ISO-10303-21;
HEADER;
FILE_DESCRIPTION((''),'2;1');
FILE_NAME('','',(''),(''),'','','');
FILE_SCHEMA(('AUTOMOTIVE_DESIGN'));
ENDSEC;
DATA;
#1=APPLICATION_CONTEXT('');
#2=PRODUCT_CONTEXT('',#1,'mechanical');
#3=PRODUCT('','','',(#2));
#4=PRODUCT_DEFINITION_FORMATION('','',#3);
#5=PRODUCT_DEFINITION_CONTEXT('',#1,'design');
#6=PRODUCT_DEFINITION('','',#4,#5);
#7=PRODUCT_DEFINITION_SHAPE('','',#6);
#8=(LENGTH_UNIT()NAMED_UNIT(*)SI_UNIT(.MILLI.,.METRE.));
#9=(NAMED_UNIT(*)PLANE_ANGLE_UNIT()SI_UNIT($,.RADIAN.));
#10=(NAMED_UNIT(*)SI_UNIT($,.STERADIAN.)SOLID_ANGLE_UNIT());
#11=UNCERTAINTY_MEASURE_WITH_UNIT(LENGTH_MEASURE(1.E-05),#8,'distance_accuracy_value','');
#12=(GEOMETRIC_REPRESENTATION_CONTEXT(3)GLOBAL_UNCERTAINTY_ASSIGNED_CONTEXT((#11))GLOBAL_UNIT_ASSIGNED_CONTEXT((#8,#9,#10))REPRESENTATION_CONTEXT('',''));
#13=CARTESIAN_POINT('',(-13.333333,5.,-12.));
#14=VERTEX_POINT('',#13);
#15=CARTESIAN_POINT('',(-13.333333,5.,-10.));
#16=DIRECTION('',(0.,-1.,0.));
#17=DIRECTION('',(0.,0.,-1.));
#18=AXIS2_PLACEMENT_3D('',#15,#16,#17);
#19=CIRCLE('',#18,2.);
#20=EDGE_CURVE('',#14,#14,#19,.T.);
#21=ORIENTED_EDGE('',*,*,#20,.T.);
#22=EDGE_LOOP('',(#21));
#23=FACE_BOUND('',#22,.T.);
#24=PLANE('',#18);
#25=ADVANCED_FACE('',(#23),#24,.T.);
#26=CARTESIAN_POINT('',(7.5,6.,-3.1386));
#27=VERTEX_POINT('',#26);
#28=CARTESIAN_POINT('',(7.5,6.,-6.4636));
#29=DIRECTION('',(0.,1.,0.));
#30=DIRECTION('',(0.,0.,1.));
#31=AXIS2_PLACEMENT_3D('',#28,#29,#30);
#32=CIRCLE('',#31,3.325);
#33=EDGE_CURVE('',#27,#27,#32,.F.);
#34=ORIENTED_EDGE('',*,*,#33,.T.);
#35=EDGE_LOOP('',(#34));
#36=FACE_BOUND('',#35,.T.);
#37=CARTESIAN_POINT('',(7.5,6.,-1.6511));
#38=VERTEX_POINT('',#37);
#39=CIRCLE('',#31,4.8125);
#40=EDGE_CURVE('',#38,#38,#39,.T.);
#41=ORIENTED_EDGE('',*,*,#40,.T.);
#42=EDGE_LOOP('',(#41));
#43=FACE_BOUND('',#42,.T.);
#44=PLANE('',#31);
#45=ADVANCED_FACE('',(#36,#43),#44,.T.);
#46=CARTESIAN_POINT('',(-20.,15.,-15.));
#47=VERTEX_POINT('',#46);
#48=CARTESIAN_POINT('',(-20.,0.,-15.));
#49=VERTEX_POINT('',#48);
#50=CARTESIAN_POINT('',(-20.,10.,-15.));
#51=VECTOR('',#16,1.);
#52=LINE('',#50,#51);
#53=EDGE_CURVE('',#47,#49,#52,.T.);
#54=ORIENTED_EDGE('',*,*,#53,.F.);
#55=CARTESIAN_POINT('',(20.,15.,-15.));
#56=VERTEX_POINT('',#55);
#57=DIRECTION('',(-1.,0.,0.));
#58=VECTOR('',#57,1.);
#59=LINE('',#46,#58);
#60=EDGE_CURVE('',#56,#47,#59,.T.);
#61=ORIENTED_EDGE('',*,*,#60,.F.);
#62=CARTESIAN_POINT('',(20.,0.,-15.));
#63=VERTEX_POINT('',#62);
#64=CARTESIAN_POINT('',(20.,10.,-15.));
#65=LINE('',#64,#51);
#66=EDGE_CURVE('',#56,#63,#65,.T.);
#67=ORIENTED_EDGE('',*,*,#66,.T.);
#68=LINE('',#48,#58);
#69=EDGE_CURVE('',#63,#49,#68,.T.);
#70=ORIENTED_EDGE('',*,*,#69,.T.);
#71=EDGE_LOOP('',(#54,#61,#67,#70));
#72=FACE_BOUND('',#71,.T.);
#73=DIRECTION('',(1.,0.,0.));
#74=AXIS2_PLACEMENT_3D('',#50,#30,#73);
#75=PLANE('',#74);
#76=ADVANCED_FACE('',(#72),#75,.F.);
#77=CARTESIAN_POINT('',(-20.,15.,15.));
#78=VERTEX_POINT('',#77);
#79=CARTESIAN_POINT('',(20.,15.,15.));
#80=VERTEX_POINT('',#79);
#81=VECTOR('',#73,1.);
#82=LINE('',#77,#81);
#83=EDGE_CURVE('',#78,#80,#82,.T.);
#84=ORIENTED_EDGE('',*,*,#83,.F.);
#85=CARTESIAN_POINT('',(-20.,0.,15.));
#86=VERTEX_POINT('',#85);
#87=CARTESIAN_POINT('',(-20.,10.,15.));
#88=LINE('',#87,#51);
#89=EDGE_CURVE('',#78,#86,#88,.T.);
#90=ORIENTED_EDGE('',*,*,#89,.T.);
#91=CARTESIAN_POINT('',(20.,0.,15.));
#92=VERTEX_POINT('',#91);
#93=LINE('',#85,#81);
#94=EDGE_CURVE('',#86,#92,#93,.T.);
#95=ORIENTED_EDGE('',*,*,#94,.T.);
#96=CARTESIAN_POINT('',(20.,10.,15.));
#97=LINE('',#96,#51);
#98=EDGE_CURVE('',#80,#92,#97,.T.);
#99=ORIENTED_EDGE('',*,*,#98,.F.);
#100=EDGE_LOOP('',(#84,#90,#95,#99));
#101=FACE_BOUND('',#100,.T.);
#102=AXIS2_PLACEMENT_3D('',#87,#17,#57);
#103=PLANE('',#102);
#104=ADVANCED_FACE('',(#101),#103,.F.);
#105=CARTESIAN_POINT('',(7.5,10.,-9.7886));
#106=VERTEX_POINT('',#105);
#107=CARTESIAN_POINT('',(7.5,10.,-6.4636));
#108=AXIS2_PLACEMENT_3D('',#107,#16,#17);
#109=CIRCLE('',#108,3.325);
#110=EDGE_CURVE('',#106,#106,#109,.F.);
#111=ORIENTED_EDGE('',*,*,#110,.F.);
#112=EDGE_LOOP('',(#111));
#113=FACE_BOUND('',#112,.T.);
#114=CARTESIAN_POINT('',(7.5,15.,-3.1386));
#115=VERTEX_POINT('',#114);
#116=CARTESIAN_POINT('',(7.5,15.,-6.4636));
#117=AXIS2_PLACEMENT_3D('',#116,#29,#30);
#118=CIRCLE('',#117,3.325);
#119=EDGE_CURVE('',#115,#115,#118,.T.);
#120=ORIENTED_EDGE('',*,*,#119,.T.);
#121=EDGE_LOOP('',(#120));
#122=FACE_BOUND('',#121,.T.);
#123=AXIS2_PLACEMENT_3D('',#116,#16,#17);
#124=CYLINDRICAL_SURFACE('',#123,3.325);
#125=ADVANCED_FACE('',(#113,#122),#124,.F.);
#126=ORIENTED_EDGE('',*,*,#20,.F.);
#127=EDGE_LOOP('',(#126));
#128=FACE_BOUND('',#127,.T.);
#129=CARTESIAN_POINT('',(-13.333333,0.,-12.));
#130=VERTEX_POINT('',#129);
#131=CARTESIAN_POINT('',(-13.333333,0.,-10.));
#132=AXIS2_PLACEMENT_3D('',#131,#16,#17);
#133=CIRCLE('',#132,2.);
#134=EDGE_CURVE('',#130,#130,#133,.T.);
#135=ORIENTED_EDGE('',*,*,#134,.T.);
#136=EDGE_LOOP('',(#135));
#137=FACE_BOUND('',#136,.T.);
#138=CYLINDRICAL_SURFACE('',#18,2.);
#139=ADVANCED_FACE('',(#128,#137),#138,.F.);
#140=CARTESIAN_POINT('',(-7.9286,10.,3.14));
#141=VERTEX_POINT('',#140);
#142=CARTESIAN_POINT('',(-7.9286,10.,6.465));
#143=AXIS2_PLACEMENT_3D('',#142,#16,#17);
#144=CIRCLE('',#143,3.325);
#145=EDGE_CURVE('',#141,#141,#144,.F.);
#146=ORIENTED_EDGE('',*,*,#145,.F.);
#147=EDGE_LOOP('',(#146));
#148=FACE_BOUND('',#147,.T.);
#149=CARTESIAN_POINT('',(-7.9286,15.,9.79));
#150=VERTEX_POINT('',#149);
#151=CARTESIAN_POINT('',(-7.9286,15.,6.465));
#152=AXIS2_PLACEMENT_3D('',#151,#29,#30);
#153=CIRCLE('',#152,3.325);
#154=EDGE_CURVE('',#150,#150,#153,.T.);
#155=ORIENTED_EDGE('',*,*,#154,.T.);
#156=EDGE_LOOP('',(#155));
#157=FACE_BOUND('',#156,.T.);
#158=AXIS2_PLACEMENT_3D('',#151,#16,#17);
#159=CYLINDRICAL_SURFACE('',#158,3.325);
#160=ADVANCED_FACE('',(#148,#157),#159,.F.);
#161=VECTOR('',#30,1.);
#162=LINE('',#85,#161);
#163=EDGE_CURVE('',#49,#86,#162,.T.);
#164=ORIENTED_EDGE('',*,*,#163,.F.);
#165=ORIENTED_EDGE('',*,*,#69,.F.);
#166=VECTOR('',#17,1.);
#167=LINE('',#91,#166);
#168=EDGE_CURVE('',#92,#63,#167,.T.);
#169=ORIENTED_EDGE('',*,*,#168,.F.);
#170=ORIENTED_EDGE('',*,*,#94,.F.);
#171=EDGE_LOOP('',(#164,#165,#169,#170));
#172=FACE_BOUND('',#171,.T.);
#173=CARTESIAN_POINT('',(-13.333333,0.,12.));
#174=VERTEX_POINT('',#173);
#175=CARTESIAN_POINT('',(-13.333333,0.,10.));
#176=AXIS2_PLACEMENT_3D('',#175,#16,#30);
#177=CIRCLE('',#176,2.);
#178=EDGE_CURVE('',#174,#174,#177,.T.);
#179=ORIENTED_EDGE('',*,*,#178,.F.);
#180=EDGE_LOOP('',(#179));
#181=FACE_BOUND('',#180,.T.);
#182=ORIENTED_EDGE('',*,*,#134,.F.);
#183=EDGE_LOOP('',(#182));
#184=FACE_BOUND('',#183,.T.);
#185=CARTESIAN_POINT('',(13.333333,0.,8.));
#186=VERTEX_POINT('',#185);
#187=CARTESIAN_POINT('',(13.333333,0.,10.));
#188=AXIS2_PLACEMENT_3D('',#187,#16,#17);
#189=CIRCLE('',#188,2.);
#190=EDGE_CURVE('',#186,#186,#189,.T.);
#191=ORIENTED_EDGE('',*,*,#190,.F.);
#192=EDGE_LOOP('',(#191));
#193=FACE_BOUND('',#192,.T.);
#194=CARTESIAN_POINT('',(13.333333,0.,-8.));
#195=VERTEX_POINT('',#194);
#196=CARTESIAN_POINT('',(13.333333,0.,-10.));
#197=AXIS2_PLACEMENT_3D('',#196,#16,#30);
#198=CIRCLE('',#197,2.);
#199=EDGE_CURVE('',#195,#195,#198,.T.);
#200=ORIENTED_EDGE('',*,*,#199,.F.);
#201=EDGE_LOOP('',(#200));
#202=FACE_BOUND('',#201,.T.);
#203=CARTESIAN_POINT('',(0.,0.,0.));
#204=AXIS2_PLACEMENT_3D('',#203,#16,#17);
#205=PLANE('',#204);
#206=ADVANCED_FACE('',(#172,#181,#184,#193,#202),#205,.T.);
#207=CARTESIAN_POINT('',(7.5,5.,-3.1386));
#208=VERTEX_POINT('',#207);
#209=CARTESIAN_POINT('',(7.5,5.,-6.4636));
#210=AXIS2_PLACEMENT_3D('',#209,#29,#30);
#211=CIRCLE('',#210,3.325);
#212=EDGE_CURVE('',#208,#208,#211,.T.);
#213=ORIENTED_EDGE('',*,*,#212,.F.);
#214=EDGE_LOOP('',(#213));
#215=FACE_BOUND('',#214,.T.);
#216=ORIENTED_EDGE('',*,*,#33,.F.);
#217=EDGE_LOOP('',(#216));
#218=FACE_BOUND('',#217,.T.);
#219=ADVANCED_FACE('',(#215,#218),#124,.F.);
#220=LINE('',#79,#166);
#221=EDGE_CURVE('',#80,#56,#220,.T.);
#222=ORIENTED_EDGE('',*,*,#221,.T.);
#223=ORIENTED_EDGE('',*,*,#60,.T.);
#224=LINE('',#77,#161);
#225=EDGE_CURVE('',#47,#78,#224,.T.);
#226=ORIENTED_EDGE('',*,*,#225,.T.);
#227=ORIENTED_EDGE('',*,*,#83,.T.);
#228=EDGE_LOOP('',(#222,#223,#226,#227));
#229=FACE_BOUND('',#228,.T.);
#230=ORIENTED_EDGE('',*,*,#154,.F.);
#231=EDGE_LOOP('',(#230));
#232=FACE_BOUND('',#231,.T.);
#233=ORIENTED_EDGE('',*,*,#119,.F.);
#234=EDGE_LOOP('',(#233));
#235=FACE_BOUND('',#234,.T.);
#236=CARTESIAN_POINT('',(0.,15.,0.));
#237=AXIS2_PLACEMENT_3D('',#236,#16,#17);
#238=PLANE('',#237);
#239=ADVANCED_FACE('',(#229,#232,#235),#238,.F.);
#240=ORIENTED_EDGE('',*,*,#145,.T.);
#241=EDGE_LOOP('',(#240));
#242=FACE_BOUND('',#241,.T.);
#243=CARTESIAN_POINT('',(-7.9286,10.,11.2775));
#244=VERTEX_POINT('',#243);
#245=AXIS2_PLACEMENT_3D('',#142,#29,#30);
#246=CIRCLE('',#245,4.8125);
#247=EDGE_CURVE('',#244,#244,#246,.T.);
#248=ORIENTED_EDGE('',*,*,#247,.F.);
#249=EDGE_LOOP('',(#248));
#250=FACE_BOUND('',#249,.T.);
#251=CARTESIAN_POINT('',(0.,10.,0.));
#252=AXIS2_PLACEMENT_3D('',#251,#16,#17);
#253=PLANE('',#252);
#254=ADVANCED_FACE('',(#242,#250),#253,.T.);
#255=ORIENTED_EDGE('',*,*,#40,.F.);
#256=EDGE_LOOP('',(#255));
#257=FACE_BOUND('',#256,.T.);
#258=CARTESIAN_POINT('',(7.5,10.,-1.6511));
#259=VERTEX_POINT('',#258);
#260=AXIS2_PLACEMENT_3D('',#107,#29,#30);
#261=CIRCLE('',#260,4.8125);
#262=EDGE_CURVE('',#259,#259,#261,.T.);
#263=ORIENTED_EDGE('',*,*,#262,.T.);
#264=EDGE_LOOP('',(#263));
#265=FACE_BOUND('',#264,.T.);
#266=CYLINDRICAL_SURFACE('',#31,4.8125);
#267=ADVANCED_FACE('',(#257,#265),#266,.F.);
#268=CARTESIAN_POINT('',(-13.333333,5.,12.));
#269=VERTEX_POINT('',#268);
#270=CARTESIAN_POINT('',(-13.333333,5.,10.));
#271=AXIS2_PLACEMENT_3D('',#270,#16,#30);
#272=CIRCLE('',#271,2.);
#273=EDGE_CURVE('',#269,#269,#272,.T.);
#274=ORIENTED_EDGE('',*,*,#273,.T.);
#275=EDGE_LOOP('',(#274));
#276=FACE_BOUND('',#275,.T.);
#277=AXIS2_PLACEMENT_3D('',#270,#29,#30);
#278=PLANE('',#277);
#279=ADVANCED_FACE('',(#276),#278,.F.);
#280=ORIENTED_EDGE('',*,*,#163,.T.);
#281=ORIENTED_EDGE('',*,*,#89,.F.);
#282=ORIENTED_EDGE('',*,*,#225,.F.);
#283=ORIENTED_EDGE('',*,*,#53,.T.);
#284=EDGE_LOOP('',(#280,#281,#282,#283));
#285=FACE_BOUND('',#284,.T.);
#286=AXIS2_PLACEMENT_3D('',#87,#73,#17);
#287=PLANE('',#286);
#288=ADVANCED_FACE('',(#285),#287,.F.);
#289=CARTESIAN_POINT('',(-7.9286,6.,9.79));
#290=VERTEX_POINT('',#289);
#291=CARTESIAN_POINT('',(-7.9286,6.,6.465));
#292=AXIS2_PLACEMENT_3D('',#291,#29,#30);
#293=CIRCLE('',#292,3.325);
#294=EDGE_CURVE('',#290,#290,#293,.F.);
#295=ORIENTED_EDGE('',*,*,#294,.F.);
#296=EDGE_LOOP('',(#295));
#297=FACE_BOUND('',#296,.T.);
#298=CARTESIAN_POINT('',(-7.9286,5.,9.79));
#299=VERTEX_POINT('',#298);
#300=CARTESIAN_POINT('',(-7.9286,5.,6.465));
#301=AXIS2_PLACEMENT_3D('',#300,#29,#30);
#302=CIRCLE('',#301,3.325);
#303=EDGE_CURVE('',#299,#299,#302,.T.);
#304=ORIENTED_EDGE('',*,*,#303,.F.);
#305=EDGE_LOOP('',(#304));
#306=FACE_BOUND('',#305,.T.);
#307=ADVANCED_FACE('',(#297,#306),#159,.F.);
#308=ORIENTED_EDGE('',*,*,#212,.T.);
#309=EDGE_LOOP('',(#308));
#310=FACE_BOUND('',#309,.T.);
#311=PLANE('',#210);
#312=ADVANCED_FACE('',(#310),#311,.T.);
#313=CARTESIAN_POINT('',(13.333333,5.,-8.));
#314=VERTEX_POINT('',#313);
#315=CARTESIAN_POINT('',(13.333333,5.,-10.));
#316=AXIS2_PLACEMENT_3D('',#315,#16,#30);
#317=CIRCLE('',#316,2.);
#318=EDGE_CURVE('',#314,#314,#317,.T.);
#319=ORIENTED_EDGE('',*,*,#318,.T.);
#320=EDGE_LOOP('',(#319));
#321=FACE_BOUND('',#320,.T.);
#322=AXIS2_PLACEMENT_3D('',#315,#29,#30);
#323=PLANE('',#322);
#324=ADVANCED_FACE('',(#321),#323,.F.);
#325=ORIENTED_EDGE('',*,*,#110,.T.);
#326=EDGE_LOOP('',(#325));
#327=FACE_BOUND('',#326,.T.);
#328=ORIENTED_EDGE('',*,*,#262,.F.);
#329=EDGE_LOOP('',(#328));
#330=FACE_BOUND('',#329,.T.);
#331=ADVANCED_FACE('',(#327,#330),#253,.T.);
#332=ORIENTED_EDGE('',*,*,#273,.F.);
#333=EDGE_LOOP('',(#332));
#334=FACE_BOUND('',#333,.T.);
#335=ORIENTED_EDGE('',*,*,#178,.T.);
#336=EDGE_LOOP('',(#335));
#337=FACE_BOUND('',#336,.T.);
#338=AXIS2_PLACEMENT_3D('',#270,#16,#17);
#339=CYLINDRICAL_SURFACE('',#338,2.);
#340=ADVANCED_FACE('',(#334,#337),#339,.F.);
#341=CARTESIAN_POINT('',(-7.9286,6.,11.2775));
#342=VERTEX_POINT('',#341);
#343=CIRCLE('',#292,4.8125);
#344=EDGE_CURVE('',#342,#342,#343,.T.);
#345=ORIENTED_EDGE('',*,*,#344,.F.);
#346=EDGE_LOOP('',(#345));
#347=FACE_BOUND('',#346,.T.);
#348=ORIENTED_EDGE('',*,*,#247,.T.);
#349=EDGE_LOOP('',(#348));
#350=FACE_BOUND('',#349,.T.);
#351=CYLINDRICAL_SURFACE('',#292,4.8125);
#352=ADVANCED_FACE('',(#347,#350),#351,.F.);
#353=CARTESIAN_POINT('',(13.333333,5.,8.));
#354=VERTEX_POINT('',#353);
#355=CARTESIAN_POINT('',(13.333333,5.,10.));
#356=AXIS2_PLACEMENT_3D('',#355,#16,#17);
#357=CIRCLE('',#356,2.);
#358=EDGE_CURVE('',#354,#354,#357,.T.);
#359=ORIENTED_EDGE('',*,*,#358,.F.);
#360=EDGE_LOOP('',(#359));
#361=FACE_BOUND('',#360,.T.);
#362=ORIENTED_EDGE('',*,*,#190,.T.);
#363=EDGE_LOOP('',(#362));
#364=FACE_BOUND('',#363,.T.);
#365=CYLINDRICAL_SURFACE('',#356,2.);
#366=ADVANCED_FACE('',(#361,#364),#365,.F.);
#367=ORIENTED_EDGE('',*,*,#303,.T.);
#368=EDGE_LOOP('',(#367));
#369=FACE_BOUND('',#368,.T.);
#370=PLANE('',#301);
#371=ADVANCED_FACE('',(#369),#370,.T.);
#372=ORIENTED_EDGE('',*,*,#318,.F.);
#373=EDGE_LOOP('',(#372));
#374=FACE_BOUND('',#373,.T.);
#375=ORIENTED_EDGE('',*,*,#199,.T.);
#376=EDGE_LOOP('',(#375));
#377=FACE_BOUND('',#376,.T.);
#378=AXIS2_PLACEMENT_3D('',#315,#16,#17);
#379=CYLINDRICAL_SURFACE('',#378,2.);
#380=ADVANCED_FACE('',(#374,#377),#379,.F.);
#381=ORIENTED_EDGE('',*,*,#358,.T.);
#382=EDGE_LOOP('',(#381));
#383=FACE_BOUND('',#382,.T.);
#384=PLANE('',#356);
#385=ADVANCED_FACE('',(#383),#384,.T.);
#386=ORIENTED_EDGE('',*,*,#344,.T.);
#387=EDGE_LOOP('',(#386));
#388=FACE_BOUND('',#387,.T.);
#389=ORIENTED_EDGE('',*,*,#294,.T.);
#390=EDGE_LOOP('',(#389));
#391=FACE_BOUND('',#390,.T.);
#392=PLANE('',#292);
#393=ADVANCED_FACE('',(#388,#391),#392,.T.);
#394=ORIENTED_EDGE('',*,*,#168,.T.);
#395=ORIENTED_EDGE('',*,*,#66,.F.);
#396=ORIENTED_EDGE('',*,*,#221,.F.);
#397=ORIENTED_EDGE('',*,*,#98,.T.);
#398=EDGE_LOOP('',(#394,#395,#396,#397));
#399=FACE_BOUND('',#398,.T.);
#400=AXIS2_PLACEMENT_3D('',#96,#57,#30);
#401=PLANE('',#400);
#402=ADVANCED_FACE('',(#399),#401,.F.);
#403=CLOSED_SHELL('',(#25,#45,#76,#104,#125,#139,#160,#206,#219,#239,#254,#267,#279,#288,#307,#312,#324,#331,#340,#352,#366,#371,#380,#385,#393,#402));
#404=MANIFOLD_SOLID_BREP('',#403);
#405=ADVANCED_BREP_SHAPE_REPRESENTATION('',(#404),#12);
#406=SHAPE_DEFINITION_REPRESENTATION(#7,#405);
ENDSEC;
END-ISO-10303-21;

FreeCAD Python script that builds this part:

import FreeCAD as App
import Part
import Sketcher

V = App.Vector

doc = App.newDocument("Part")
body = doc.addObject("PartDesign::Body", "Body")

# Sketch on XZ plane
sketch1 = body.newObject("Sketcher::SketchObject", "Sketch")
sketch1.AttachmentSupport = (doc.getObject("XZ_Plane"), [""])
sketch1.MapMode = "FlatFace"
sketch1.addGeometry(Part.LineSegment(V(-20, -15, 0), V(-20, 15, 0)), False)
sketch1.addGeometry(Part.LineSegment(V(-20, 15, 0), V(20, 15, 0)), False)
sketch1.addGeometry(Part.LineSegment(V(20, 15, 0), V(20, -15, 0)), False)
sketch1.addGeometry(Part.LineSegment(V(20, -15, 0), V(-20, -15, 0)), False)
sketch1.addConstraint(Sketcher.Constraint("Coincident", 0, 2, 1, 1))
sketch1.addConstraint(Sketcher.Constraint("Coincident", 1, 2, 2, 1))
sketch1.addConstraint(Sketcher.Constraint("Coincident", 2, 2, 3, 1))
sketch1.addConstraint(Sketcher.Constraint("Coincident", 3, 2, 0, 1))
sketch1.addConstraint(Sketcher.Constraint("Vertical", 0))
sketch1.addConstraint(Sketcher.Constraint("Horizontal", 1))
sketch1.addConstraint(Sketcher.Constraint("Vertical", 2))
sketch1.addConstraint(Sketcher.Constraint("Horizontal", 3))
sketch1.addConstraint(Sketcher.Constraint("Symmetric", 0, 2, 2, 2, -1, 1))
sketch1.addConstraint(Sketcher.Constraint("DistanceX", 1, 1, 1, 2, 40.0))
sketch1.addConstraint(Sketcher.Constraint("DistanceY", 0, 1, 0, 2, 30.0))
pad1 = body.newObject("PartDesign::Pad", "Pad")
pad1.Profile = sketch1
pad1.Length = 10
pad1.Reversed = True

# Sketch on XZ plane
sketch2 = body.newObject("Sketcher::SketchObject", "Sketch001")
sketch2.AttachmentSupport = (doc.getObject("XZ_Plane"), [""])
sketch2.MapMode = "FlatFace"
sketch2.addGeometry(Part.Circle(V(13.333333, 10, 0), V(0, 0, 1), 2), False)
sketch2.addGeometry(Part.Circle(V(-13.333333, 10, 0), V(0, 0, 1), 2), False)
sketch2.addGeometry(Part.Circle(V(13.333333, -10, 0), V(0, 0, 1), 2), False)
sketch2.addGeometry(Part.Circle(V(-13.333333, -10, 0), V(0, 0, 1), 2), False)
sketch2.addConstraint(Sketcher.Constraint("Equal", 0, 1))
sketch2.addConstraint(Sketcher.Constraint("Equal", 1, 2))
sketch2.addConstraint(Sketcher.Constraint("Equal", 2, 3))
sketch2.addConstraint(Sketcher.Constraint("Symmetric", 1, 3, 2, 3, -1, 1))
sketch2.addConstraint(Sketcher.Constraint("Symmetric", 0, 3, 3, 3, -1, 1))
sketch2.addConstraint(Sketcher.Constraint("Symmetric", 0, 3, 1, 3, -2))
sketch2.addConstraint(Sketcher.Constraint("Diameter", 0, 4.0))
sketch2.addConstraint(Sketcher.Constraint("DistanceY", -1, 1, 0, 3, 10.0))
sketch2.addConstraint(Sketcher.Constraint("DistanceX", -1, 1, 0, 3, 13.333333))
pocket1 = body.newObject("PartDesign::Pocket", "Pocket")
pocket1.Profile = sketch2
pocket1.Length = 5

# Sketch on XZ plane
sketch3 = body.newObject("Sketcher::SketchObject", "Sketch002")
sketch3.AttachmentSupport = (doc.getObject("XZ_Plane"), [""])
sketch3.MapMode = "FlatFace"
sketch3.AttachmentOffset = App.Placement(V(0, 0, -10), App.Rotation())
sketch3.addGeometry(Part.Circle(V(-7.9286, 6.465, 0), V(0, 0, 1), 4.8125), False)
sketch3.addGeometry(Part.Circle(V(7.5, -6.4636, 0), V(0, 0, 1), 4.8125), False)
sketch3.addConstraint(Sketcher.Constraint("Equal", 0, 1))
sketch3.addConstraint(Sketcher.Constraint("Diameter", 0, 9.625))
sketch3.addConstraint(Sketcher.Constraint("DistanceX", -1, 1, 1, 3, 7.5))
sketch3.addConstraint(Sketcher.Constraint("DistanceY", -1, 1, 0, 3, 6.465))
sketch3.addConstraint(Sketcher.Constraint("DistanceX", 0, 3, -1, 1, 7.9286))
sketch3.addConstraint(Sketcher.Constraint("DistanceY", 1, 3, -1, 1, 6.4636))
pocket2 = body.newObject("PartDesign::Pocket", "Pocket001")
pocket2.Profile = sketch3
pocket2.Length = 4
pocket2.Reversed = True

# Sketch on XZ plane
sketch4 = body.newObject("Sketcher::SketchObject", "Sketch003")
sketch4.AttachmentSupport = (doc.getObject("XZ_Plane"), [""])
sketch4.MapMode = "FlatFace"
sketch4.AttachmentOffset = App.Placement(V(0, 0, -10), App.Rotation())
sketch4.addGeometry(Part.LineSegment(V(-20, -15, 0), V(-20, 15, 0)), False)
sketch4.addGeometry(Part.LineSegment(V(-20, 15, 0), V(20, 15, 0)), False)
sketch4.addGeometry(Part.LineSegment(V(20, 15, 0), V(20, -15, 0)), False)
sketch4.addGeometry(Part.LineSegment(V(20, -15, 0), V(-20, -15, 0)), False)
sketch4.addConstraint(Sketcher.Constraint("Coincident", 0, 2, 1, 1))
sketch4.addConstraint(Sketcher.Constraint("Coincident", 1, 2, 2, 1))
sketch4.addConstraint(Sketcher.Constraint("Coincident", 2, 2, 3, 1))
sketch4.addConstraint(Sketcher.Constraint("Coincident", 3, 2, 0, 1))
sketch4.addConstraint(Sketcher.Constraint("Vertical", 0))
sketch4.addConstraint(Sketcher.Constraint("Horizontal", 1))
sketch4.addConstraint(Sketcher.Constraint("Vertical", 2))
sketch4.addConstraint(Sketcher.Constraint("Horizontal", 3))
sketch4.addConstraint(Sketcher.Constraint("Symmetric", 0, 2, 2, 2, -1, 1))
sketch4.addConstraint(Sketcher.Constraint("DistanceX", 1, 1, 1, 2, 40.0))
sketch4.addConstraint(Sketcher.Constraint("DistanceY", 0, 1, 0, 2, 30.0))
pad2 = body.newObject("PartDesign::Pad", "Pad001")
pad2.Profile = sketch4
pad2.Length = 5
pad2.Reversed = True

# Sketch on XZ plane
sketch5 = body.newObject("Sketcher::SketchObject", "Sketch004")
sketch5.AttachmentSupport = (doc.getObject("XZ_Plane"), [""])
sketch5.MapMode = "FlatFace"
sketch5.AttachmentOffset = App.Placement(V(0, 0, -6), App.Rotation())
sketch5.addGeometry(Part.Circle(V(-7.9286, 6.465, 0), V(0, 0, 1), 3.325), False)
sketch5.addGeometry(Part.Circle(V(7.5, -6.4636, 0), V(0, 0, 1), 3.325), False)
sketch5.addConstraint(Sketcher.Constraint("Equal", 0, 1))
sketch5.addConstraint(Sketcher.Constraint("Diameter", 0, 6.65))
sketch5.addConstraint(Sketcher.Constraint("DistanceX", -1, 1, 1, 3, 7.5))
sketch5.addConstraint(Sketcher.Constraint("DistanceY", -1, 1, 0, 3, 6.465))
sketch5.addConstraint(Sketcher.Constraint("DistanceX", 0, 3, -1, 1, 7.9286))
sketch5.addConstraint(Sketcher.Constraint("DistanceY", 1, 3, -1, 1, 6.4636))
pocket3 = body.newObject("PartDesign::Pocket", "Pocket002")
pocket3.Profile = sketch5
pocket3.Type = "TwoLengths"
pocket3.Length = 27.570661
pocket3.Length2 = 1

doc.recompute()
